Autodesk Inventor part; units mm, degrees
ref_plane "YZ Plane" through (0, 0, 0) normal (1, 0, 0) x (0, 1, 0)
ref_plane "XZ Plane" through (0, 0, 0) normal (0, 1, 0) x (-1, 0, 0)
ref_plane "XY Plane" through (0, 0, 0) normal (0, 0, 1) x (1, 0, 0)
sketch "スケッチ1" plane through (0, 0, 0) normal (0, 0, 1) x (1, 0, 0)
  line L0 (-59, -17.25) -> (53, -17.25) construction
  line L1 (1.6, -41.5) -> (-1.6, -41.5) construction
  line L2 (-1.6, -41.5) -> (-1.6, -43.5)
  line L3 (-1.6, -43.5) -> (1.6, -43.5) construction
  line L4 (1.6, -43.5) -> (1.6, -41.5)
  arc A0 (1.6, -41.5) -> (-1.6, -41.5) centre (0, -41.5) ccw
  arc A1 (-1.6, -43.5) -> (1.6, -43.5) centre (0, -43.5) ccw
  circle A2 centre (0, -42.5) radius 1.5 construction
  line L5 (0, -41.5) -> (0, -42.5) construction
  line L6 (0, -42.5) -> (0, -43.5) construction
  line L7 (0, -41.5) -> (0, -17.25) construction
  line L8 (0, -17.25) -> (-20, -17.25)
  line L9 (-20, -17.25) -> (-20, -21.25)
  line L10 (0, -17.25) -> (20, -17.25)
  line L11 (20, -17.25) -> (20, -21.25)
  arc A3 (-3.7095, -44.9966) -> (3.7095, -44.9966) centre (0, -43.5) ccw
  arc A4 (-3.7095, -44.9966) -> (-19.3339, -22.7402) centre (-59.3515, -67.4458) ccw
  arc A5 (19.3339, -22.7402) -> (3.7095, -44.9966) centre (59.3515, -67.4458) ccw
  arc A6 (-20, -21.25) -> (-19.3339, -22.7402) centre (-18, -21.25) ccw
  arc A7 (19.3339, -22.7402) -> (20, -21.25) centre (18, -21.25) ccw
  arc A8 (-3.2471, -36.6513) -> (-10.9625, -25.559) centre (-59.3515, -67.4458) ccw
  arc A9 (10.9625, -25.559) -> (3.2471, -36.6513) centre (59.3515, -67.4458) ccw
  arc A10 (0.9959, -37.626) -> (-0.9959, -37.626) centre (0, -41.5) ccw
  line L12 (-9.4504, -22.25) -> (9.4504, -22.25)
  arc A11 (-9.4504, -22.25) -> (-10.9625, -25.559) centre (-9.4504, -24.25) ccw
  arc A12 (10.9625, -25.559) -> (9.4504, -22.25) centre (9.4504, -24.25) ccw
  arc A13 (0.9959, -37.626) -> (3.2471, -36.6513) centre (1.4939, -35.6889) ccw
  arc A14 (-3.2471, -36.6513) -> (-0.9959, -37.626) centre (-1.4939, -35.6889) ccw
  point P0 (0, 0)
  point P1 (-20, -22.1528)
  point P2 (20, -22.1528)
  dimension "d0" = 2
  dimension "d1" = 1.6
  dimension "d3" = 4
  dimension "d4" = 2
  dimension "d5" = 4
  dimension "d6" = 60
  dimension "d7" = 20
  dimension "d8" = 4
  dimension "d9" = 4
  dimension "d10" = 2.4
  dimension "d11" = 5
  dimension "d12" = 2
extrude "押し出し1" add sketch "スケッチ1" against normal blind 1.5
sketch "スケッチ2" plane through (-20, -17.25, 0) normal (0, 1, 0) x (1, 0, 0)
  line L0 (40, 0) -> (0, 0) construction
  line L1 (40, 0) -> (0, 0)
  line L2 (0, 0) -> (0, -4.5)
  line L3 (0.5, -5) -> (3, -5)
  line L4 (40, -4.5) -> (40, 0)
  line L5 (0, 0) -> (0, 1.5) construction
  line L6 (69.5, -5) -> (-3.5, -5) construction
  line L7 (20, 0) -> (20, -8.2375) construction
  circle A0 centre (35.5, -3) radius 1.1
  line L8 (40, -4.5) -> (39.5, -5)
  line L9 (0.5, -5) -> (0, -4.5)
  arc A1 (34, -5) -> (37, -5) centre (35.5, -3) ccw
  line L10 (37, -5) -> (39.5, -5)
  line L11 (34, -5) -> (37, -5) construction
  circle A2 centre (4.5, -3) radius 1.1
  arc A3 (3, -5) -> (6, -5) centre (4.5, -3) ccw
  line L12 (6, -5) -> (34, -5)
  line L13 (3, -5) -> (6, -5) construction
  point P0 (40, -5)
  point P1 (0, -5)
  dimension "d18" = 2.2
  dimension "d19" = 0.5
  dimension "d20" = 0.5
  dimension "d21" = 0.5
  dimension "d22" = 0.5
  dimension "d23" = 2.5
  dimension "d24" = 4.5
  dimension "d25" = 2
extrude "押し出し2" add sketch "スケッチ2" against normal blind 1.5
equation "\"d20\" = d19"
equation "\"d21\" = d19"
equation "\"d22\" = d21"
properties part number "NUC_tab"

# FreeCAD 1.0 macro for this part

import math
import FreeCAD as App
import Part
import Sketcher

V = App.Vector

doc = App.newDocument("Part")
body = doc.addObject("PartDesign::Body", "Body")

# Sketch on XY plane
sketch1 = doc.addObject("Sketcher::SketchObject", "Sketch")
body.addObject(sketch1)
sketch1.AttachmentSupport = (doc.XY_Plane, [""])
sketch1.MapMode = "FlatFace"
sketch1.addGeometry([
    Part.LineSegment(V(20, -17.25, 0), V(-20, -17.25, 0)),  # 0
    Part.LineSegment(V(-20, -17.25, 0), V(-20, -21.25, 0)),  # 1
    Part.ArcOfCircle(Part.Circle(V(-18, -21.25, 0), V(0, 0, 1), 2), math.radians(180), math.radians(228.167807)),  # 2
    Part.ArcOfCircle(Part.Circle(V(-59.3515, -67.4458, 0), V(0, 0, 1), 59.99999), math.radians(21.971997), math.radians(48.167125)),  # 3
    Part.ArcOfCircle(Part.Circle(V(0, -43.5, 0), V(0, 0, 1), 4.000025), math.radians(-158.028358), math.radians(-21.971642)),  # 4
    Part.ArcOfCircle(Part.Circle(V(59.3515, -67.4458, 0), V(0, 0, 1), 59.999992), math.radians(131.832875), math.radians(158.028003)),  # 5
    Part.ArcOfCircle(Part.Circle(V(18, -21.25, 0), V(0, 0, 1), 1.999996), math.radians(-48.167807), math.radians(0)),  # 6
    Part.LineSegment(V(20, -21.25, 0), V(20, -17.25, 0)),  # 7
    Part.LineSegment(V(-1.6, -43.5, 0), V(-1.6, -41.5, 0)),  # 8
    Part.ArcOfCircle(Part.Circle(V(0, -41.5, 0), V(0, 0, 1), 1.6), math.radians(0), math.radians(180)),  # 9
    Part.LineSegment(V(1.6, -41.5, 0), V(1.6, -43.5, 0)),  # 10
    Part.ArcOfCircle(Part.Circle(V(0, -43.5, 0), V(0, 0, 1), 1.6), math.radians(180), math.radians(360)),  # 11
    Part.ArcOfCircle(Part.Circle(V(-1.4939, -35.6889, 0), V(0, 0, 1), 1.999981), math.radians(-151.235896), math.radians(-75.582318)),  # 12
    Part.ArcOfCircle(Part.Circle(V(-59.348171, -67.443737, 0), V(0, 0, 1), 63.996127), math.radians(28.761252), math.radians(40.880885)),  # 13
    Part.ArcOfCircle(Part.Circle(V(-9.4504, -24.25, 0), V(0, 0, 1), 2), math.radians(90), math.radians(220.882198)),  # 14
    Part.LineSegment(V(-9.4504, -22.25, 0), V(9.4504, -22.25, 0)),  # 15
    Part.ArcOfCircle(Part.Circle(V(9.4504, -24.25, 0), V(0, 0, 1), 1.999982), math.radians(-40.882198), math.radians(90)),  # 16
    Part.ArcOfCircle(Part.Circle(V(59.354593, -67.448204, 0), V(0, 0, 1), 64.003906), math.radians(139.119854), math.radians(151.238009)),  # 17
    Part.ArcOfCircle(Part.Circle(V(1.4939, -35.6889, 0), V(0, 0, 1), 2.00009), math.radians(-104.417682), math.radians(-28.764104)),  # 18
    Part.ArcOfCircle(Part.Circle(V(0, -41.5, 0), V(0, 0, 1), 3.999962), math.radians(75.582992), math.radians(104.417008)),  # 19
], False)
sketch1.addConstraint([
    Sketcher.Constraint("Coincident", 0, 2, 1, 1),
    Sketcher.Constraint("Coincident", 1, 2, 2, 1),
    Sketcher.Constraint("Coincident", 2, 2, 3, 2),
    Sketcher.Constraint("Coincident", 3, 1, 4, 1),
    Sketcher.Constraint("Coincident", 4, 2, 5, 2),
    Sketcher.Constraint("Coincident", 5, 1, 6, 1),
    Sketcher.Constraint("Coincident", 6, 2, 7, 1),
    Sketcher.Constraint("Coincident", 7, 2, 0, 1),
    Sketcher.Constraint("Coincident", 8, 2, 9, 2),
    Sketcher.Constraint("Coincident", 9, 1, 10, 1),
    Sketcher.Constraint("Coincident", 10, 2, 11, 2),
    Sketcher.Constraint("Coincident", 11, 1, 8, 1),
    Sketcher.Constraint("Coincident", 12, 1, 13, 1),
    Sketcher.Constraint("Coincident", 13, 2, 14, 2),
    Sketcher.Constraint("Coincident", 14, 1, 15, 1),
    Sketcher.Constraint("Coincident", 15, 2, 16, 2),
    Sketcher.Constraint("Coincident", 16, 1, 17, 1),
    Sketcher.Constraint("Coincident", 17, 2, 18, 2),
    Sketcher.Constraint("Coincident", 18, 1, 19, 1),
    Sketcher.Constraint("Coincident", 19, 2, 12, 2),
    Sketcher.Constraint("Horizontal", 0),
    Sketcher.Constraint("Vertical", 1),
    Sketcher.Constraint("Vertical", 7),
    Sketcher.Constraint("Vertical", 8),
    Sketcher.Constraint("Vertical", 10),
    Sketcher.Constraint("Horizontal", 15),
    Sketcher.Constraint("Coincident", 11, 3, 4, 3),
    Sketcher.Constraint("Coincident", 19, 3, 9, 3),
    Sketcher.Constraint("PointOnObject", 4, 3, -2),
    Sketcher.Constraint("Radius", 2, 2.0),
    Sketcher.Constraint("Radius", 3, 60.0),
    Sketcher.Constraint("Radius", 4, 4.0),
    Sketcher.Constraint("Radius", 5, 60.0),
    Sketcher.Constraint("Radius", 6, 2.0),
    Sketcher.Constraint("Radius", 12, 2.0),
    Sketcher.Constraint("Radius", 14, 2.0),
    Sketcher.Constraint("Radius", 16, 2.0),
    Sketcher.Constraint("Radius", 18, 2.0),
    Sketcher.Constraint("Radius", 19, 4.0),
    Sketcher.Constraint("Radius", 9, 1.6),
    Sketcher.Constraint("DistanceY", 1, 2, 1, 1, 4.0),
    Sketcher.Constraint("DistanceY", 7, 1, 7, 2, 4.0),
    Sketcher.Constraint("DistanceY", 8, 1, 8, 2, 2.0),
    Sketcher.Constraint("DistanceY", 10, 2, 10, 1, 2.0),
    Sketcher.Constraint("DistanceX", 0, 2, -1, 1, 20.0),
    Sketcher.Constraint("DistanceX", -1, 1, 6, 2, 20.0),
    Sketcher.Constraint("DistanceY", 4, 3, 9, 3, 2.0),
    Sketcher.Constraint("DistanceY", 2, 3, 0, 2, 4.0),
    Sketcher.Constraint("DistanceY", 6, 3, 7, 2, 4.0),
    Sketcher.Constraint("DistanceY", 4, 3, 8, 2, 2.0),
    Sketcher.Constraint("DistanceY", 4, 3, 9, 1, 2.0),
    Sketcher.Constraint("DistanceY", 15, 2, 7, 2, 5.0),
    Sketcher.Constraint("Radius", 17, 64.004),
    Sketcher.Constraint("DistanceY", 4, 3, -1, 1, 43.5),
    Sketcher.Constraint("Radius", 13, 63.9961),
    Sketcher.Constraint("DistanceY", 2, 3, -1, 1, 21.25),
    Sketcher.Constraint("DistanceX", 2, 2, 12, 3, 17.84),
    Sketcher.Constraint("DistanceX", 18, 3, 5, 1, 17.84),
    Sketcher.Constraint("DistanceX", 15, 1, 15, 2, 18.9008),
    Sketcher.Constraint("DistanceX", 12, 3, -1, 1, 1.494),
    Sketcher.Constraint("DistanceX", -1, 1, 18, 3, 1.494),
    Sketcher.Constraint("DistanceX", 12, 1, -1, 1, 3.247),
    Sketcher.Constraint("DistanceY", 13, 2, -1, 1, 25.559),
    Sketcher.Constraint("DistanceY", 16, 1, -1, 1, 25.559),
    Sketcher.Constraint("DistanceX", -1, 1, 17, 2, 3.247),
    Sketcher.Constraint("DistanceX", -1, 1, 18, 1, 0.996),
    Sketcher.Constraint("DistanceX", 19, 2, -1, 1, 0.996),
    Sketcher.Constraint("DistanceY", 3, 3, 13, 3, 0.002),
    Sketcher.Constraint("DistanceX", 5, 3, 17, 3, 0.003),
    Sketcher.Constraint("DistanceX", 3, 1, 4, 2, 7.419),
    Sketcher.Constraint("DistanceX", 13, 2, 14, 1, 1.512),
    Sketcher.Constraint("DistanceX", 3, 1, -1, 1, 3.7095),
])
pad1 = doc.addObject("PartDesign::Pad", "Pad")
body.addObject(pad1)
pad1.Profile = sketch1
pad1.Length = 1.5
pad1.Reversed = True

# Sketch on XZ plane
sketch2 = doc.addObject("Sketcher::SketchObject", "Sketch001")
body.addObject(sketch2)
sketch2.AttachmentSupport = (doc.XZ_Plane, [""])
sketch2.MapMode = "FlatFace"
sketch2.AttachmentOffset = App.Placement(V(0, 0, 17.25), App.Rotation())
sketch2.addGeometry([
    Part.LineSegment(V(20, 4.5, 0), V(20, 0, 0)),  # 0
    Part.LineSegment(V(20, 0, 0), V(-20, 0, 0)),  # 1
    Part.LineSegment(V(-20, 0, 0), V(-20, 4.5, 0)),  # 2
    Part.LineSegment(V(-20, 4.5, 0), V(-19.5, 5, 0)),  # 3
    Part.LineSegment(V(-19.5, 5, 0), V(-17, 5, 0)),  # 4
    Part.ArcOfCircle(Part.Circle(V(-15.5, 3, 0), V(0, 0, 1), 2.5), math.radians(53), math.radians(127)),  # 5
    Part.LineSegment(V(-14, 5, 0), V(14, 5, 0)),  # 6
    Part.ArcOfCircle(Part.Circle(V(15.5, 3, 0), V(0, 0, 1), 2.5), math.radians(53), math.radians(127)),  # 7
    Part.LineSegment(V(17, 5, 0), V(19.5, 5, 0)),  # 8
    Part.LineSegment(V(19.5, 5, 0), V(20, 4.5, 0)),  # 9
    Part.Circle(V(-15.5, 3, 0), V(0, 0, 1), 1.1),  # 10
    Part.Circle(V(15.5, 3, 0), V(0, 0, 1), 1.1),  # 11
], False)
sketch2.addConstraint([
    Sketcher.Constraint("Coincident", 0, 2, 1, 1),
    Sketcher.Constraint("Coincident", 1, 2, 2, 1),
    Sketcher.Constraint("Coincident", 2, 2, 3, 1),
    Sketcher.Constraint("Coincident", 3, 2, 4, 1),
    Sketcher.Constraint("Coincident", 4, 2, 5, 2),
    Sketcher.Constraint("Coincident", 5, 1, 6, 1),
    Sketcher.Constraint("Coincident", 6, 2, 7, 2),
    Sketcher.Constraint("Coincident", 7, 1, 8, 1),
    Sketcher.Constraint("Coincident", 8, 2, 9, 1),
    Sketcher.Constraint("Coincident", 9, 2, 0, 1),
    Sketcher.Constraint("Vertical", 0),
    Sketcher.Constraint("Horizontal", 1),
    Sketcher.Constraint("Vertical", 2),
    Sketcher.Constraint("Horizontal", 4),
    Sketcher.Constraint("Horizontal", 6),
    Sketcher.Constraint("Horizontal", 8),
    Sketcher.Constraint("Coincident", 10, 3, 5, 3),
    Sketcher.Constraint("Coincident", 11, 3, 7, 3),
    Sketcher.Constraint("Equal", 5, 7),
    Sketcher.Constraint("Equal", 10, 11),
    Sketcher.Constraint("Symmetric", 0, 2, 1, 2, -1, 1),
    Sketcher.Constraint("Symmetric", 5, 3, 7, 3, -2),
    Sketcher.Constraint("Symmetric", 3, 2, 8, 2, -2),
    Sketcher.Constraint("Perpendicular", 3, 9),
    Sketcher.Constraint("Horizontal", 4, 2, 5, 1),
    Sketcher.Constraint("Horizontal", 2, 2, 9, 2),
    Sketcher.Constraint("Diameter", 10, 2.2),
    Sketcher.Constraint("Radius", 5, 2.5),
    Sketcher.Constraint("DistanceX", 4, 1, 4, 2, 2.5),
    Sketcher.Constraint("DistanceY", 0, 2, 0, 1, 4.5),
    Sketcher.Constraint("DistanceY", 5, 3, 3, 2, 2.0),
    Sketcher.Constraint("DistanceX", 7, 3, 0, 2, 4.5),
    Sketcher.Constraint("DistanceX", 1, 2, 1, 1, 40.0),
])
pad2 = doc.addObject("PartDesign::Pad", "Pad001")
body.addObject(pad2)
pad2.Profile = sketch2
pad2.Length = 1.5

doc.recompute()
